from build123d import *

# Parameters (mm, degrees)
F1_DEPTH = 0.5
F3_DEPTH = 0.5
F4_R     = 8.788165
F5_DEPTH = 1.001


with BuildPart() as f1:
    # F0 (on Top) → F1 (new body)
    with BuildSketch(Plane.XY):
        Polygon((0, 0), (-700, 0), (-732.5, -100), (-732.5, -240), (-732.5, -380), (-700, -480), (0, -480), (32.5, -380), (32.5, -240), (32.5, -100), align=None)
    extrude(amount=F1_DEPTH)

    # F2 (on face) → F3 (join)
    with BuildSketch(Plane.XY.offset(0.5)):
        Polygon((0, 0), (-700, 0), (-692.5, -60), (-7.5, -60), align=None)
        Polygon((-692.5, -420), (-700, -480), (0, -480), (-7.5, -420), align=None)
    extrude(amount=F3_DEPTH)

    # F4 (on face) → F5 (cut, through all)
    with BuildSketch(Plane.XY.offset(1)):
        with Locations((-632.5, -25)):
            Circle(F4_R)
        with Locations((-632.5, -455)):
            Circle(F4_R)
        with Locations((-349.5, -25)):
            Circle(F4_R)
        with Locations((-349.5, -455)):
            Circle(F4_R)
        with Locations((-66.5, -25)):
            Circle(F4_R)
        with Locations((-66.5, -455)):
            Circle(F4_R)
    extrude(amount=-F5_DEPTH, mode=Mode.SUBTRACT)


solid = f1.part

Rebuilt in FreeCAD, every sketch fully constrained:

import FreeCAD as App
import Part
import Sketcher

doc = App.newDocument("Part")
params = doc.addObject("Spreadsheet::Sheet", "Params")
for row, (alias, value) in enumerate([
    ("sketch1_width", "700 mm"),
    ("sketch1_height", "280 mm"),
    ("pad1_length", "0.5 mm"),
    ("sketch2_width", "700 mm"),
    ("sketch2_width2", "685 mm"),
    ("pad2_length", "0.5 mm"),
], start=1):
    params.set(f"A{row}", alias)
    params.set(f"B{row}", "=" + value)
    params.setAlias(f"B{row}", alias)

body = doc.addObject("PartDesign::Body", "Body")

# Sketch on XY plane
sketch1 = doc.addObject("Sketcher::SketchObject", "Sketch")
body.addObject(sketch1)
sketch1.AttachmentSupport = (doc.XY_Plane, [""])
sketch1.MapMode = "FlatFace"
sketch1.addGeometry([
    Part.LineSegment(App.Vector(0, 0, 0), App.Vector(-700, 0, 0)),  # 0
    Part.LineSegment(App.Vector(-700, 0, 0), App.Vector(-732, -100, 0)),  # 1
    Part.LineSegment(App.Vector(-732, -100, 0), App.Vector(-732, -380, 0)),  # 2
    Part.LineSegment(App.Vector(-732, -380, 0), App.Vector(-700, -480, 0)),  # 3
    Part.LineSegment(App.Vector(-700, -480, 0), App.Vector(0, -480, 0)),  # 4
    Part.LineSegment(App.Vector(0, -480, 0), App.Vector(32, -380, 0)),  # 5
    Part.LineSegment(App.Vector(32, -380, 0), App.Vector(32, -100, 0)),  # 6
    Part.LineSegment(App.Vector(32, -100, 0), App.Vector(0, 0, 0)),  # 7
], False)
sketch1.addConstraint([
    Sketcher.Constraint("Coincident", 0, 2, 1, 1),
    Sketcher.Constraint("Coincident", 1, 2, 2, 1),
    Sketcher.Constraint("Coincident", 2, 2, 3, 1),
    Sketcher.Constraint("Coincident", 3, 2, 4, 1),
    Sketcher.Constraint("Coincident", 4, 2, 5, 1),
    Sketcher.Constraint("Coincident", 5, 2, 6, 1),
    Sketcher.Constraint("Coincident", 6, 2, 7, 1),
    Sketcher.Constraint("Coincident", 7, 2, 0, 1),
    Sketcher.Constraint("Horizontal", 0),
    Sketcher.Constraint("Vertical", 2),
    Sketcher.Constraint("Horizontal", 4),
    Sketcher.Constraint("Vertical", 6),
    Sketcher.Constraint("Coincident", 7, 2, -1, 1),
    Sketcher.Constraint("PointOnObject", 4, 2, -2),
    Sketcher.Constraint("Parallel", 1, 5),
    Sketcher.Constraint("Parallel", 3, 7),
    Sketcher.Constraint("Horizontal", 2, 2, 5, 2),
    Sketcher.Constraint("Horizontal", 1, 2, 6, 2),
    Sketcher.Constraint("Vertical", 0, 2, 3, 2),
    Sketcher.Constraint("DistanceX", 0, 2, 0, 1, 700.0),
    Sketcher.Constraint("DistanceY", 2, 2, 2, 1, 280.0),
    Sketcher.Constraint("DistanceY", 1, 2, -1, 1, 100.0),
    Sketcher.Constraint("DistanceX", 2, 2, 5, 2, 765.0),
])
sketch1.setExpression("Constraints[19]", "Params.sketch1_width")
sketch1.setExpression("Constraints[20]", "Params.sketch1_height")
pad1 = doc.addObject("PartDesign::Pad", "Pad")
body.addObject(pad1)
pad1.Profile = sketch1
pad1.setExpression("Length", "Params.pad1_length")

# Sketch on XY plane
sketch2 = doc.addObject("Sketcher::SketchObject", "Sketch001")
body.addObject(sketch2)
sketch2.AttachmentSupport = (doc.XY_Plane, [""])
sketch2.MapMode = "FlatFace"
sketch2.AttachmentOffset = App.Placement(App.Vector(0, 0, 0.5), App.Rotation())
sketch2.addGeometry([
    Part.LineSegment(App.Vector(0, 0, 0), App.Vector(-700, 0, 0)),  # 0
    Part.LineSegment(App.Vector(-700, 0, 0), App.Vector(-692, -60, 0)),  # 1
    Part.LineSegment(App.Vector(-692, -60, 0), App.Vector(-8, -60, 0)),  # 2
    Part.LineSegment(App.Vector(-8, -60, 0), App.Vector(0, 0, 0)),  # 3
    Part.LineSegment(App.Vector(-692, -420, 0), App.Vector(-700, -480, 0)),  # 4
    Part.LineSegment(App.Vector(-700, -480, 0), App.Vector(0, -480, 0)),  # 5
    Part.LineSegment(App.Vector(0, -480, 0), App.Vector(-8, -420, 0)),  # 6
    Part.LineSegment(App.Vector(-8, -420, 0), App.Vector(-692, -420, 0)),  # 7
], False)
sketch2.addConstraint([
    Sketcher.Constraint("Coincident", 0, 2, 1, 1),
    Sketcher.Constraint("Coincident", 1, 2, 2, 1),
    Sketcher.Constraint("Coincident", 2, 2, 3, 1),
    Sketcher.Constraint("Coincident", 3, 2, 0, 1),
    Sketcher.Constraint("Coincident", 4, 2, 5, 1),
    Sketcher.Constraint("Coincident", 5, 2, 6, 1),
    Sketcher.Constraint("Coincident", 6, 2, 7, 1),
    Sketcher.Constraint("Coincident", 7, 2, 4, 1),
    Sketcher.Constraint("Horizontal", 0),
    Sketcher.Constraint("Horizontal", 2),
    Sketcher.Constraint("Horizontal", 5),
    Sketcher.Constraint("Horizontal", 7),
    Sketcher.Constraint("Coincident", 3, 2, -1, 1),
    Sketcher.Constraint("PointOnObject", 5, 2, -2),
    Sketcher.Constraint("Parallel", 3, 4),
    Sketcher.Constraint("Parallel", 1, 6),
    Sketcher.Constraint("Vertical", 0, 2, 4, 2),
    Sketcher.Constraint("Vertical", 2, 2, 6, 2),
    Sketcher.Constraint("Vertical", 1, 2, 7, 2),
    Sketcher.Constraint("DistanceX", 0, 2, 0, 1, 700.0),
    Sketcher.Constraint("DistanceX", 2, 1, 2, 2, 685.0),
    Sketcher.Constraint("DistanceY", 1, 2, -1, 1, 60.0),
    Sketcher.Constraint("DistanceY", 4, 2, -1, 1, 480.0),
])
sketch2.setExpression("Constraints[19]", "Params.sketch2_width")
sketch2.setExpression("Constraints[20]", "Params.sketch2_width2")
pad2 = doc.addObject("PartDesign::Pad", "Pad001")
body.addObject(pad2)
pad2.Profile = sketch2
pad2.setExpression("Length", "Params.pad2_length")

# Sketch on XY plane
sketch3 = doc.addObject("Sketcher::SketchObject", "Sketch002")
body.addObject(sketch3)
sketch3.AttachmentSupport = (doc.XY_Plane, [""])
sketch3.MapMode = "FlatFace"
sketch3.AttachmentOffset = App.Placement(App.Vector(0, 0, 1), App.Rotation())
sketch3.addGeometry([
    Part.Circle(App.Vector(-632, -25, 0), App.Vector(0, 0, 1), 9),  # 0
    Part.Circle(App.Vector(-632, -455, 0), App.Vector(0, 0, 1), 9),  # 1
    Part.Circle(App.Vector(-350, -25, 0), App.Vector(0, 0, 1), 9),  # 2
    Part.Circle(App.Vector(-350, -455, 0), App.Vector(0, 0, 1), 9),  # 3
    Part.Circle(App.Vector(-66, -25, 0), App.Vector(0, 0, 1), 9),  # 4
    Part.Circle(App.Vector(-66, -455, 0), App.Vector(0, 0, 1), 9),  # 5
], False)
sketch3.addConstraint([
    Sketcher.Constraint("Equal", 0, 1),
    Sketcher.Constraint("Equal", 1, 2),
    Sketcher.Constraint("Equal", 2, 3),
    Sketcher.Constraint("Equal", 3, 4),
    Sketcher.Constraint("Equal", 4, 5),
    Sketcher.Constraint("Horizontal", 0, 3, 2, 3),
    Sketcher.Constraint("Horizontal", 1, 3, 3, 3),
    Sketcher.Constraint("Horizontal", 2, 3, 4, 3),
    Sketcher.Constraint("Horizontal", 3, 3, 5, 3),
    Sketcher.Constraint("Vertical", 0, 3, 1, 3),
    Sketcher.Constraint("Vertical", 2, 3, 3, 3),
    Sketcher.Constraint("Vertical", 4, 3, 5, 3),
    Sketcher.Constraint("DistanceY", 0, 3, -1, 1, 25.0),
    Sketcher.Constraint("DistanceY", 1, 3, -1, 1, 455.0),
    Sketcher.Constraint("DistanceX", 0, 3, 2, 3, 283.0),
    Sketcher.Constraint("DistanceX", 2, 3, 4, 3, 283.0),
    Sketcher.Constraint("DistanceX", 0, 3, -1, 1, 632.5),
    Sketcher.Constraint("Diameter", 0, 17.57633),
])
pocket1 = doc.addObject("PartDesign::Pocket", "Pocket")
body.addObject(pocket1)
pocket1.Profile = sketch3
pocket1.Type = "ThroughAll"

doc.recompute()
